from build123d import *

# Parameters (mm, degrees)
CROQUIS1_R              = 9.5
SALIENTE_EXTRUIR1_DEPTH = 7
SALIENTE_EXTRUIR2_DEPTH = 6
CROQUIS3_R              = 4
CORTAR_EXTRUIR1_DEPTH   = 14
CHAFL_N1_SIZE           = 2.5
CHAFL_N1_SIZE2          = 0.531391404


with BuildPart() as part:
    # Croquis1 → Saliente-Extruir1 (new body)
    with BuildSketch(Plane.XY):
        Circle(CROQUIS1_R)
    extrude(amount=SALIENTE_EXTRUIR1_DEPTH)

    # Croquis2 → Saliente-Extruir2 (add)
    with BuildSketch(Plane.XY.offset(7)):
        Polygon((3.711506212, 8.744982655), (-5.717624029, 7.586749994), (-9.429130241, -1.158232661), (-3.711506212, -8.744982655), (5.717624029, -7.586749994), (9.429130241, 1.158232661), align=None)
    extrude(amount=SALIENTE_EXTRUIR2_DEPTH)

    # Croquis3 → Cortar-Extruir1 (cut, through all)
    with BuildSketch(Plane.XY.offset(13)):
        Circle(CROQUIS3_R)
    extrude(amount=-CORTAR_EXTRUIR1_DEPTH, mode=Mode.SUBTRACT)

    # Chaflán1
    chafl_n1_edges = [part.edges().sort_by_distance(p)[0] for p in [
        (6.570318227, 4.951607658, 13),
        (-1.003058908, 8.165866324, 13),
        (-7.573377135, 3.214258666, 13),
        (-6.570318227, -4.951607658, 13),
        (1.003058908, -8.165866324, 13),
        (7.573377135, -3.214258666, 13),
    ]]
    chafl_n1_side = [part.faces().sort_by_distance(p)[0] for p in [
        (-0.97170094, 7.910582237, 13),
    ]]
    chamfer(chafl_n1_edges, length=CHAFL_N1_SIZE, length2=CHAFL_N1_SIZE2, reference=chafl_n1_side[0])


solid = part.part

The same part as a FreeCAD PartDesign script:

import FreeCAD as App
import Part
import Sketcher
Q = App.Units.Quantity


def edges_at(feature, points):
    """Names of the edges that pass closest to the given points."""
    edges = feature.Shape.Edges
    near = lambda p: min(range(len(edges)), key=lambda i: edges[i].distToShape(Part.Vertex(*p))[0])
    return sorted({f"Edge{near(p) + 1}" for p in points})

doc = App.newDocument("Part")
body = doc.addObject("PartDesign::Body", "Body")

sketch1 = body.newObject("Sketcher::SketchObject", "Sketch")
sketch1.AttachmentSupport = (doc.getObject("XY_Plane"), [""])
sketch1.MapMode = "FlatFace"
sketch1.addGeometry(Part.Circle(App.Vector(0, 0, 0), App.Vector(0, 0, 1), 10), False)
sketch1.addConstraint(Sketcher.Constraint("Coincident", 0, 3, -1, 1))
sketch1.addConstraint(Sketcher.Constraint("Diameter", 0, Q("19 mm")))
pad1 = body.newObject("PartDesign::Pad", "Pad")
pad1.Profile = sketch1
pad1.Length = 7

sketch2 = body.newObject("Sketcher::SketchObject", "Sketch001")
sketch2.AttachmentSupport = (doc.getObject("XY_Plane"), [""])
sketch2.MapMode = "FlatFace"
sketch2.AttachmentOffset = App.Placement(App.Vector(0, 0, 7), App.Rotation())
sketch2.addGeometry(Part.LineSegment(App.Vector(4, 9, 0), App.Vector(-6, 8, 0)), False)
sketch2.addGeometry(Part.LineSegment(App.Vector(-6, 8, 0), App.Vector(-9, -1, 0)), False)
sketch2.addGeometry(Part.LineSegment(App.Vector(-9, -1, 0), App.Vector(-4, -9, 0)), False)
sketch2.addGeometry(Part.LineSegment(App.Vector(-4, -9, 0), App.Vector(6, -8, 0)), False)
sketch2.addGeometry(Part.LineSegment(App.Vector(6, -8, 0), App.Vector(9, 1, 0)), False)
sketch2.addGeometry(Part.LineSegment(App.Vector(9, 1, 0), App.Vector(4, 9, 0)), False)
sketch2.addConstraint(Sketcher.Constraint("Coincident", 0, 2, 1, 1))
sketch2.addConstraint(Sketcher.Constraint("Coincident", 1, 2, 2, 1))
sketch2.addConstraint(Sketcher.Constraint("Coincident", 2, 2, 3, 1))
sketch2.addConstraint(Sketcher.Constraint("Coincident", 3, 2, 4, 1))
sketch2.addConstraint(Sketcher.Constraint("Coincident", 4, 2, 5, 1))
sketch2.addConstraint(Sketcher.Constraint("Coincident", 5, 2, 0, 1))
sketch2.addConstraint(Sketcher.Constraint("Symmetric", 0, 2, 3, 2, -1, 1))
sketch2.addConstraint(Sketcher.Constraint("Symmetric", 1, 2, 4, 2, -1, 1))
sketch2.addConstraint(Sketcher.Constraint("Symmetric", 2, 2, 5, 2, -1, 1))
sketch2.addConstraint(Sketcher.Constraint("Equal", 0, 1))
sketch2.addConstraint(Sketcher.Constraint("Equal", 1, 2))
sketch2.addConstraint(Sketcher.Constraint("Distance", 0, Q("9.5 mm")))
sketch2.addConstraint(Sketcher.Constraint("DistanceY", 3, 2, 0, 2, Q("15.1735 mm")))
sketch2.addConstraint(Sketcher.Constraint("DistanceX", 1, 2, -1, 1, Q("9.42913 mm")))
sketch2.addConstraint(Sketcher.Constraint("DistanceY", 2, 2, 1, 2, Q("7.58675 mm")))
pad2 = body.newObject("PartDesign::Pad", "Pad001")
pad2.Profile = sketch2
pad2.Length = 6

sketch3 = body.newObject("Sketcher::SketchObject", "Sketch002")
sketch3.AttachmentSupport = (doc.getObject("XY_Plane"), [""])
sketch3.MapMode = "FlatFace"
sketch3.AttachmentOffset = App.Placement(App.Vector(0, 0, 13), App.Rotation())
sketch3.addGeometry(Part.Circle(App.Vector(0, 0, 0), App.Vector(0, 0, 1), 4), False)
sketch3.addConstraint(Sketcher.Constraint("Coincident", 0, 3, -1, 1))
sketch3.addConstraint(Sketcher.Constraint("Diameter", 0, Q("8 mm")))
pocket1 = body.newObject("PartDesign::Pocket", "Pocket")
pocket1.Profile = sketch3
pocket1.Type = "ThroughAll"
doc.recompute()

chamfer = body.newObject("PartDesign::Chamfer", "Chamfer")
chamfer.Base = (pocket1, edges_at(pocket1, [
    (6.57, 4.952, 13),
    (-1.003, 8.166, 13),
    (-7.573, 3.214, 13),
    (-6.57, -4.952, 13),
    (1.003, -8.166, 13),
    (7.573, -3.214, 13),
]))
chamfer.ChamferType = "Two distances"
chamfer.Size = 2.5
chamfer.Size2 = 0.531391
chamfer.FlipDirection = True

doc.recompute()
